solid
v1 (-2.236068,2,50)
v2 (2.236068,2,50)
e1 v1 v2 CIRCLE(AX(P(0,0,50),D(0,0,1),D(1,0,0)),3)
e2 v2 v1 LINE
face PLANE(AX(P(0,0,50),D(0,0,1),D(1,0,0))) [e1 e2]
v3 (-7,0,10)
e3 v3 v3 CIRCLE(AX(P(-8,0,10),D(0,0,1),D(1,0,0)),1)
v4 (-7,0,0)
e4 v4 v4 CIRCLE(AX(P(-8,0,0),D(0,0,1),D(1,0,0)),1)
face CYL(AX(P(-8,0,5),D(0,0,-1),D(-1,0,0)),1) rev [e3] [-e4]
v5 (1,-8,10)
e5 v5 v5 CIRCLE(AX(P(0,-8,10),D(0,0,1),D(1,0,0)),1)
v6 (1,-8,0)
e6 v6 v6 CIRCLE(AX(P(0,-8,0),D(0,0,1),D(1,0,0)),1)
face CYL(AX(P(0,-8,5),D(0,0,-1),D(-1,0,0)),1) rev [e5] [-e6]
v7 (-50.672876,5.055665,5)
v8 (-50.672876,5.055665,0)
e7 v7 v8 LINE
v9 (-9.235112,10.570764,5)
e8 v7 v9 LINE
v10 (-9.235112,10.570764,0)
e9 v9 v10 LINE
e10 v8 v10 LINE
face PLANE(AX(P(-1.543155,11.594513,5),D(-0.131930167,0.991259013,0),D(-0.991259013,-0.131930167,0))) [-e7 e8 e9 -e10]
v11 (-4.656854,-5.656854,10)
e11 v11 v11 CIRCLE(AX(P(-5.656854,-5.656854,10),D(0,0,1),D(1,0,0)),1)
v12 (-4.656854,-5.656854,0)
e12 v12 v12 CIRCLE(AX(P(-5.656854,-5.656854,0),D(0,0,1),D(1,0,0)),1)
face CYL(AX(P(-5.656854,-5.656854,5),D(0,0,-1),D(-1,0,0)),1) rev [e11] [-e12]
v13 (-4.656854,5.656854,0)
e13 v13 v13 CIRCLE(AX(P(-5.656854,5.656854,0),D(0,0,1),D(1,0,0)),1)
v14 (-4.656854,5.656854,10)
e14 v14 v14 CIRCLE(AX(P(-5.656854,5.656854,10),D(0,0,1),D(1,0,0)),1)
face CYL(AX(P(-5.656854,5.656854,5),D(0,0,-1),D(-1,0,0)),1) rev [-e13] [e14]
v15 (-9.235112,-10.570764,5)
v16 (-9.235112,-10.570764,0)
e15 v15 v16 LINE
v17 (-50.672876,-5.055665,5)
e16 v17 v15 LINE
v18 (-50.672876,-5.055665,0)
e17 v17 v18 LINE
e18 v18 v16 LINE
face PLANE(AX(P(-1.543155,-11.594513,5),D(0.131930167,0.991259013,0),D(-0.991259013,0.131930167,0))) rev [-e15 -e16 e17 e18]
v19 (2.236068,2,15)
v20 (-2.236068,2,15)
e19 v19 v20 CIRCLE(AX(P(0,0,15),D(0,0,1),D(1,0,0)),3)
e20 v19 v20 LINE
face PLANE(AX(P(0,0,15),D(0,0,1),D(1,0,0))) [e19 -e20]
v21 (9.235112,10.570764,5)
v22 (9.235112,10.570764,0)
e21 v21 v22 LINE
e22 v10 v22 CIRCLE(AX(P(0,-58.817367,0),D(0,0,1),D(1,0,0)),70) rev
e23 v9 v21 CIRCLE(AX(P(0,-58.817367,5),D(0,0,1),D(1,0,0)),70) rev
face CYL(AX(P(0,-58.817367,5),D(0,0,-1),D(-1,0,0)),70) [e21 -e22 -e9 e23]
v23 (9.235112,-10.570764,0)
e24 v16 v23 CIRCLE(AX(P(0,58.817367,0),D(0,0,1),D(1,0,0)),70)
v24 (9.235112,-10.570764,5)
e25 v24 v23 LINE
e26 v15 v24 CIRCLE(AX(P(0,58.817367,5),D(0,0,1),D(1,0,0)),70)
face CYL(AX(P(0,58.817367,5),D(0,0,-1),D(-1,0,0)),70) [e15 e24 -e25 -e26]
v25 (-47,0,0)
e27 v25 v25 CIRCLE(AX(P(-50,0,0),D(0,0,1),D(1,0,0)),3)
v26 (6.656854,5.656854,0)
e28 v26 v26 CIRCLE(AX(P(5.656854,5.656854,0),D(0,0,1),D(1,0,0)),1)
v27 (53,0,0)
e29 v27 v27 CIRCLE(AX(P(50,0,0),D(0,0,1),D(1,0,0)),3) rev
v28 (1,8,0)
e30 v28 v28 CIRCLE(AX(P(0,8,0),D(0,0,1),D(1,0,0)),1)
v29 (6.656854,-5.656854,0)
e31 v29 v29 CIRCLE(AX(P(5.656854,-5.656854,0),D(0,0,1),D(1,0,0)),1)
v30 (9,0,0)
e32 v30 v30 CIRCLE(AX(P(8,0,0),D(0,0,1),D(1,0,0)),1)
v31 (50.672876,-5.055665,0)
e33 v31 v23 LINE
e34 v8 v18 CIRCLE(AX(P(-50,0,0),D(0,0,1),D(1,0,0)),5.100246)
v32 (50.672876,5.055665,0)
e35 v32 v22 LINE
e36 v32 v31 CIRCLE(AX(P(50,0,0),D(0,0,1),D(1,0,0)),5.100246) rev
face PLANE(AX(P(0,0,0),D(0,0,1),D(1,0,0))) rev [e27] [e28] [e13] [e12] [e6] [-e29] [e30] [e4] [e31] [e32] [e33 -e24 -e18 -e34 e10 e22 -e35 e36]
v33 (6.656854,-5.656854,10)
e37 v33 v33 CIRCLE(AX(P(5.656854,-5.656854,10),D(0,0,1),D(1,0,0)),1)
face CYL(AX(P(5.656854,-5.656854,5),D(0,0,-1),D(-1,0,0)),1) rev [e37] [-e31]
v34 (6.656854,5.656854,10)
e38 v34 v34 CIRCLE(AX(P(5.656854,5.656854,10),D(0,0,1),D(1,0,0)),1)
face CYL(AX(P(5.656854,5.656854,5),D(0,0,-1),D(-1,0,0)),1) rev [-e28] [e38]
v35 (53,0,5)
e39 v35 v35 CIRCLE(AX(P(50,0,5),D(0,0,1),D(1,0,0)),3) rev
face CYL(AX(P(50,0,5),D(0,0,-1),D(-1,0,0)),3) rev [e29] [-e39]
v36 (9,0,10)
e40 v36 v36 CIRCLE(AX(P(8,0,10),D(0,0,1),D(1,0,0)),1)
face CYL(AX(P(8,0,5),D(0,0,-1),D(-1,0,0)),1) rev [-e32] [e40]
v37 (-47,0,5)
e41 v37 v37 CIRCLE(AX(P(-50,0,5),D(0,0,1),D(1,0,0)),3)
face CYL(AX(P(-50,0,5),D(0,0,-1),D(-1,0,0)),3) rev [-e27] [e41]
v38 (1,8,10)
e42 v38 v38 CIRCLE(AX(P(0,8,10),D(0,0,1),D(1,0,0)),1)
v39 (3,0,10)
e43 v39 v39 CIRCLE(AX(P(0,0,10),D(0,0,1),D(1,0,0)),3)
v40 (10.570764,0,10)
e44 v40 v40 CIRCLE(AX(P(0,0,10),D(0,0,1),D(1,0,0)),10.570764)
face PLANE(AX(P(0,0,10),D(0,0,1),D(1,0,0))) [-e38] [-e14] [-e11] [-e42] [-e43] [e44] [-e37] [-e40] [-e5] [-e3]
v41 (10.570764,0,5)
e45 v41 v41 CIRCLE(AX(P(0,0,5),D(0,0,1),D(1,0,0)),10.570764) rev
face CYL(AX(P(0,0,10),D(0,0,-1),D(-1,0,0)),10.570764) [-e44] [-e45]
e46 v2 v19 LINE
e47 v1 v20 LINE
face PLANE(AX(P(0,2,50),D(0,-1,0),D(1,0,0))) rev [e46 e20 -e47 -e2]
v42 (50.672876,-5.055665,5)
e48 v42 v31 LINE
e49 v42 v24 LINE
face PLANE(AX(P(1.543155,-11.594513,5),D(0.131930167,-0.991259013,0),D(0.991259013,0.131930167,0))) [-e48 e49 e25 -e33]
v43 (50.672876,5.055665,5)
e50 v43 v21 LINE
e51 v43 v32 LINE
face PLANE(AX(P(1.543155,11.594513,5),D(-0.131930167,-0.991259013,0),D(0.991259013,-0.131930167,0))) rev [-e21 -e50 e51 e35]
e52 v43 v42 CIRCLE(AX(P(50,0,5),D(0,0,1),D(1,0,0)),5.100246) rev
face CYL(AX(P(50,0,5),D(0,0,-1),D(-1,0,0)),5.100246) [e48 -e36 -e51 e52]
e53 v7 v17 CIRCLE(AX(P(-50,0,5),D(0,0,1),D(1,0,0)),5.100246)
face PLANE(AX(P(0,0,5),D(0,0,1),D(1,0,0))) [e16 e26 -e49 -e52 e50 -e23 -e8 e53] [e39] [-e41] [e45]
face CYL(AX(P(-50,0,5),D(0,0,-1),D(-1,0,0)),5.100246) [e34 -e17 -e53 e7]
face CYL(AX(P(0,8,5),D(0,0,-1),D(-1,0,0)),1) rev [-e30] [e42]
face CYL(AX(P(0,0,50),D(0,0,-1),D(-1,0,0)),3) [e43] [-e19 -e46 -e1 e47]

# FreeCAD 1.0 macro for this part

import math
import FreeCAD as App
import Part
import Sketcher
Q = App.Units.Quantity

doc = App.newDocument("Part")
body = doc.addObject("PartDesign::Body", "Body")

sketch1 = doc.addObject("Sketcher::SketchObject", "Sketch")
body.addObject(sketch1)
sketch1.AttachmentSupport = (doc.XY_Plane, [""])
sketch1.MapMode = "FlatFace"
sketch1.addGeometry(Part.LineSegment(App.Vector(-9.235112, 10.570764, 0), App.Vector(-50.672876, 5.055665, 0)), False)
sketch1.addGeometry(Part.ArcOfCircle(Part.Circle(App.Vector(-50, 0, 0), App.Vector(0, 0, 1), 5.100246), math.radians(97.581144), math.radians(262.418856)), False)
sketch1.addGeometry(Part.LineSegment(App.Vector(-50.672876, -5.055665, 0), App.Vector(-9.235112, -10.570764, 0)), False)
sketch1.addGeometry(Part.ArcOfCircle(Part.Circle(App.Vector(0, 58.817367, 0), App.Vector(0, 0, 1), 70), math.radians(-97.581144), math.radians(-82.418856)), False)
sketch1.addGeometry(Part.LineSegment(App.Vector(9.235112, -10.570764, 0), App.Vector(50.672876, -5.055665, 0)), False)
sketch1.addGeometry(Part.ArcOfCircle(Part.Circle(App.Vector(50, 0, 0), App.Vector(0, 0, 1), 5.100246), math.radians(-82.418856), math.radians(82.418856)), False)
sketch1.addGeometry(Part.LineSegment(App.Vector(50.672876, 5.055665, 0), App.Vector(9.235112, 10.570764, 0)), False)
sketch1.addGeometry(Part.ArcOfCircle(Part.Circle(App.Vector(0, -58.817367, 0), App.Vector(0, 0, 1), 70), math.radians(82.418856), math.radians(97.581144)), False)
sketch1.addGeometry(Part.Circle(App.Vector(5.656854, -5.656854, 0), App.Vector(0, 0, 1), 1), False)
sketch1.addGeometry(Part.Circle(App.Vector(0, -8, 0), App.Vector(0, 0, 1), 1), False)
sketch1.addGeometry(Part.Circle(App.Vector(-5.656854, -5.656854, 0), App.Vector(0, 0, 1), 1), False)
sketch1.addGeometry(Part.Circle(App.Vector(50, 0, 0), App.Vector(0, 0, 1), 3), False)
sketch1.addGeometry(Part.Circle(App.Vector(8, 0, 0), App.Vector(0, 0, 1), 1), False)
sketch1.addGeometry(Part.Circle(App.Vector(5.656854, 5.656854, 0), App.Vector(0, 0, 1), 1), False)
sketch1.addGeometry(Part.Circle(App.Vector(-8, 0, 0), App.Vector(0, 0, 1), 1), False)
sketch1.addGeometry(Part.Circle(App.Vector(-50, 0, 0), App.Vector(0, 0, 1), 3), False)
sketch1.addGeometry(Part.Circle(App.Vector(-5.656854, 5.656854, 0), App.Vector(0, 0, 1), 1), False)
sketch1.addGeometry(Part.Circle(App.Vector(0, 8, 0), App.Vector(0, 0, 1), 1), False)
sketch1.addConstraint(Sketcher.Constraint("Tangent", 0, 2, 1, 1))
sketch1.addConstraint(Sketcher.Constraint("Tangent", 1, 2, 2, 1))
sketch1.addConstraint(Sketcher.Constraint("Tangent", 2, 2, 3, 1))
sketch1.addConstraint(Sketcher.Constraint("Tangent", 3, 2, 4, 1))
sketch1.addConstraint(Sketcher.Constraint("Tangent", 4, 2, 5, 1))
sketch1.addConstraint(Sketcher.Constraint("Tangent", 5, 2, 6, 1))
sketch1.addConstraint(Sketcher.Constraint("Tangent", 6, 2, 7, 1))
sketch1.addConstraint(Sketcher.Constraint("Tangent", 7, 2, 0, 1))
sketch1.addConstraint(Sketcher.Constraint("Coincident", 11, 3, 5, 3))
sketch1.addConstraint(Sketcher.Constraint("Coincident", 15, 3, 1, 3))
sketch1.addConstraint(Sketcher.Constraint("Equal", 1, 5))
sketch1.addConstraint(Sketcher.Constraint("Equal", 3, 7))
sketch1.addConstraint(Sketcher.Constraint("Equal", 8, 9))
sketch1.addConstraint(Sketcher.Constraint("Equal", 9, 10))
sketch1.addConstraint(Sketcher.Constraint("Equal", 10, 12))
sketch1.addConstraint(Sketcher.Constraint("Equal", 12, 13))
sketch1.addConstraint(Sketcher.Constraint("Equal", 13, 14))
sketch1.addConstraint(Sketcher.Constraint("Equal", 11, 15))
sketch1.addConstraint(Sketcher.Constraint("Equal", 14, 16))
sketch1.addConstraint(Sketcher.Constraint("Equal", 16, 17))
sketch1.addConstraint(Sketcher.Constraint("Symmetric", 1, 3, 5, 3, -1, 1))
sketch1.addConstraint(Sketcher.Constraint("Symmetric", 3, 3, 7, 3, -1, 1))
sketch1.addConstraint(Sketcher.Constraint("Symmetric", 10, 3, 13, 3, -1, 1))
sketch1.addConstraint(Sketcher.Constraint("Symmetric", 12, 3, 14, 3, -1, 1))
sketch1.addConstraint(Sketcher.Constraint("Symmetric", 8, 3, 16, 3, -1, 1))
sketch1.addConstraint(Sketcher.Constraint("Symmetric", 9, 3, 17, 3, -1, 1))
sketch1.addConstraint(Sketcher.Constraint("Symmetric", 8, 3, 10, 3, -2))
sketch1.addConstraint(Sketcher.Constraint("Symmetric", 2, 2, 3, 2, -2))
sketch1.addConstraint(Sketcher.Constraint("PointOnObject", 9, 3, -2))
sketch1.addConstraint(Sketcher.Constraint("PointOnObject", 12, 3, -1))
sketch1.addConstraint(Sketcher.Constraint("Diameter", 8, Q("2 mm")))
sketch1.addConstraint(Sketcher.Constraint("Diameter", 11, Q("6 mm")))
sketch1.addConstraint(Sketcher.Constraint("Radius", 3, Q("70 mm")))
sketch1.addConstraint(Sketcher.Constraint("DistanceX", 1, 3, -1, 1, Q("50 mm")))
sketch1.addConstraint(Sketcher.Constraint("DistanceY", 9, 3, -1, 1, Q("8 mm")))
sketch1.addConstraint(Sketcher.Constraint("DistanceX", -1, 1, 12, 3, Q("8 mm")))
sketch1.addConstraint(Sketcher.Constraint("Radius", 1, Q("5.100246 mm")))
sketch1.addConstraint(Sketcher.Constraint("DistanceY", 3, 2, 4, 2, Q("5.515099 mm")))
sketch1.addConstraint(Sketcher.Constraint("DistanceY", 8, 3, 3, 3, Q("64.474221 mm")))
sketch1.addConstraint(Sketcher.Constraint("DistanceX", 10, 3, 8, 3, Q("11.313708 mm")))
pad1 = doc.addObject("PartDesign::Pad", "Pad")
body.addObject(pad1)
pad1.Profile = sketch1
pad1.Length = 5

sketch2 = doc.addObject("Sketcher::SketchObject", "Sketch001")
body.addObject(sketch2)
sketch2.AttachmentSupport = (doc.XY_Plane, [""])
sketch2.MapMode = "FlatFace"
sketch2.addGeometry(Part.Circle(App.Vector(0, 0, 0), App.Vector(0, 0, 1), 10.570764), False)
sketch2.addGeometry(Part.Circle(App.Vector(-5.656854, -5.656854, 0), App.Vector(0, 0, 1), 1), False)
sketch2.addGeometry(Part.Circle(App.Vector(0, -8, 0), App.Vector(0, 0, 1), 1), False)
sketch2.addGeometry(Part.Circle(App.Vector(5.656854, -5.656854, 0), App.Vector(0, 0, 1), 1), False)
sketch2.addGeometry(Part.Circle(App.Vector(-8, 0, 0), App.Vector(0, 0, 1), 1), False)
sketch2.addGeometry(Part.Circle(App.Vector(-5.656854, 5.656854, 0), App.Vector(0, 0, 1), 1), False)
sketch2.addGeometry(Part.Circle(App.Vector(0, 0, 0), App.Vector(0, 0, 1), 3), False)
sketch2.addGeometry(Part.Circle(App.Vector(8, 0, 0), App.Vector(0, 0, 1), 1), False)
sketch2.addGeometry(Part.Circle(App.Vector(0, 8, 0), App.Vector(0, 0, 1), 1), False)
sketch2.addGeometry(Part.Circle(App.Vector(5.656854, 5.656854, 0), App.Vector(0, 0, 1), 1), False)
sketch2.addConstraint(Sketcher.Constraint("Coincident", 0, 3, -1, 1))
sketch2.addConstraint(Sketcher.Constraint("Coincident", 6, 3, -1, 1))
sketch2.addConstraint(Sketcher.Constraint("Equal", 1, 2))
sketch2.addConstraint(Sketcher.Constraint("Equal", 2, 3))
sketch2.addConstraint(Sketcher.Constraint("Equal", 3, 4))
sketch2.addConstraint(Sketcher.Constraint("Equal", 4, 5))
sketch2.addConstraint(Sketcher.Constraint("Equal", 5, 7))
sketch2.addConstraint(Sketcher.Constraint("Equal", 7, 8))
sketch2.addConstraint(Sketcher.Constraint("Equal", 8, 9))
sketch2.addConstraint(Sketcher.Constraint("Symmetric", 3, 3, 5, 3, -1, 1))
sketch2.addConstraint(Sketcher.Constraint("Symmetric", 4, 3, 7, 3, -1, 1))
sketch2.addConstraint(Sketcher.Constraint("Symmetric", 2, 3, 8, 3, -1, 1))
sketch2.addConstraint(Sketcher.Constraint("Symmetric", 1, 3, 9, 3, -1, 1))
sketch2.addConstraint(Sketcher.Constraint("Symmetric", 1, 3, 3, 3, -2))
sketch2.addConstraint(Sketcher.Constraint("PointOnObject", 2, 3, -2))
sketch2.addConstraint(Sketcher.Constraint("PointOnObject", 4, 3, -1))
sketch2.addConstraint(Sketcher.Constraint("Diameter", 1, Q("2 mm")))
sketch2.addConstraint(Sketcher.Constraint("Diameter", 6, Q("6 mm")))
sketch2.addConstraint(Sketcher.Constraint("DistanceY", 2, 3, -1, 1, Q("8 mm")))
sketch2.addConstraint(Sketcher.Constraint("DistanceX", 4, 3, -1, 1, Q("8 mm")))
sketch2.addConstraint(Sketcher.Constraint("Diameter", 0, Q("21.141528 mm")))
sketch2.addConstraint(Sketcher.Constraint("DistanceX", 1, 3, 3, 3, Q("11.313708 mm")))
sketch2.addConstraint(Sketcher.Constraint("DistanceY", 1, 3, 5, 3, Q("11.313708 mm")))
pad2 = doc.addObject("PartDesign::Pad", "Pad001")
body.addObject(pad2)
pad2.Profile = sketch2
pad2.Length = 10

sketch3 = doc.addObject("Sketcher::SketchObject", "Sketch002")
body.addObject(sketch3)
sketch3.AttachmentSupport = (doc.XY_Plane, [""])
sketch3.MapMode = "FlatFace"
sketch3.addGeometry(Part.ArcOfCircle(Part.Circle(App.Vector(0, 0, 0), App.Vector(0, 0, 1), 3), math.radians(0), math.radians(41.810315)), False)
sketch3.addGeometry(Part.LineSegment(App.Vector(2.236068, 2, 0), App.Vector(-2.236068, 2, 0)), False)
sketch3.addGeometry(Part.ArcOfCircle(Part.Circle(App.Vector(0, 0, 0), App.Vector(0, 0, 1), 3), math.radians(138.189685), math.radians(360)), False)
sketch3.addConstraint(Sketcher.Constraint("Coincident", 0, 2, 1, 1))
sketch3.addConstraint(Sketcher.Constraint("Coincident", 1, 2, 2, 1))
sketch3.addConstraint(Sketcher.Constraint("Tangent", 2, 2, 0, 1))
sketch3.addConstraint(Sketcher.Constraint("Horizontal", 1))
sketch3.addConstraint(Sketcher.Constraint("Coincident", 0, 3, -1, 1))
sketch3.addConstraint(Sketcher.Constraint("Equal", 0, 2))
sketch3.addConstraint(Sketcher.Constraint("PointOnObject", 2, 2, -1))
sketch3.addConstraint(Sketcher.Constraint("Radius", 0, Q("3 mm")))
sketch3.addConstraint(Sketcher.Constraint("DistanceY", -1, 1, 0, 2, Q("2 mm")))
pad3 = doc.addObject("PartDesign::Pad", "Pad002")
body.addObject(pad3)
pad3.Profile = sketch3
pad3.Length = 50

sketch4 = doc.addObject("Sketcher::SketchObject", "Sketch003")
body.addObject(sketch4)
sketch4.AttachmentSupport = (doc.XY_Plane, [""])
sketch4.MapMode = "FlatFace"
sketch4.addGeometry(Part.ArcOfCircle(Part.Circle(App.Vector(0, 0, 0), App.Vector(0, 0, 1), 3), math.radians(0), math.radians(41.810315)), False)
sketch4.addGeometry(Part.ArcOfCircle(Part.Circle(App.Vector(0, 0, 0), App.Vector(0, 0, 1), 3), math.radians(41.810315), math.radians(138.189685)), False)
sketch4.addGeometry(Part.ArcOfCircle(Part.Circle(App.Vector(0, 0, 0), App.Vector(0, 0, 1), 3), math.radians(138.189685), math.radians(360)), False)
sketch4.addConstraint(Sketcher.Constraint("Tangent", 0, 2, 1, 1))
sketch4.addConstraint(Sketcher.Constraint("Tangent", 1, 2, 2, 1))
sketch4.addConstraint(Sketcher.Constraint("Tangent", 2, 2, 0, 1))
sketch4.addConstraint(Sketcher.Constraint("Coincident", 0, 3, -1, 1))
sketch4.addConstraint(Sketcher.Constraint("PointOnObject", 2, 2, -1))
sketch4.addConstraint(Sketcher.Constraint("Horizontal", 0, 2, 1, 2))
sketch4.addConstraint(Sketcher.Constraint("Radius", 0, Q("3 mm")))
sketch4.addConstraint(Sketcher.Constraint("DistanceY", -1, 1, 0, 2, Q("2 mm")))
pad4 = doc.addObject("PartDesign::Pad", "Pad003")
body.addObject(pad4)
pad4.Profile = sketch4
pad4.Length = 15

doc.recompute()
